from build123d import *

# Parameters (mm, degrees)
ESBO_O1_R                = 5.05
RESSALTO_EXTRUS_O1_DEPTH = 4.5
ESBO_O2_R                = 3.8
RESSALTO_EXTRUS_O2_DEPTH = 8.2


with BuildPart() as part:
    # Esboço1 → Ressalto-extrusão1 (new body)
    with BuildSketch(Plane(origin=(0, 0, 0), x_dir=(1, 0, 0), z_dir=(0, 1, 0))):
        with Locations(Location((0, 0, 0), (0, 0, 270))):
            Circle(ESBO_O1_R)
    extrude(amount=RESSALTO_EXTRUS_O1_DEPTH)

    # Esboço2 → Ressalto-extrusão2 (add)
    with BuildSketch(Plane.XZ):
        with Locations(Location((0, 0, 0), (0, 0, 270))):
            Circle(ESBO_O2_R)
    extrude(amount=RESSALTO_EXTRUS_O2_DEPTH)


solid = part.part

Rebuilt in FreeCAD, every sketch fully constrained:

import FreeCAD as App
import Part
import Sketcher
Q = App.Units.Quantity

doc = App.newDocument("Part")
body = doc.addObject("PartDesign::Body", "Body")

sketch1 = body.newObject("Sketcher::SketchObject", "Sketch")
sketch1.AttachmentSupport = (doc.getObject("XZ_Plane"), [""])
sketch1.MapMode = "FlatFace"
sketch1.addGeometry(Part.Circle(App.Vector(0, 0, 0), App.Vector(0, 0, 1), 5), False)
sketch1.addConstraint(Sketcher.Constraint("Coincident", 0, 3, -1, 1))
sketch1.addConstraint(Sketcher.Constraint("Diameter", 0, Q("10.1 mm")))
pad1 = body.newObject("PartDesign::Pad", "Pad")
pad1.Profile = sketch1
pad1.Length = 4.5
pad1.Reversed = True

sketch2 = body.newObject("Sketcher::SketchObject", "Sketch001")
sketch2.AttachmentSupport = (doc.getObject("XZ_Plane"), [""])
sketch2.MapMode = "FlatFace"
sketch2.addGeometry(Part.Circle(App.Vector(0, 0, 0), App.Vector(0, 0, 1), 3.8), False)
sketch2.addConstraint(Sketcher.Constraint("Coincident", 0, 3, -1, 1))
sketch2.addConstraint(Sketcher.Constraint("Diameter", 0, Q("7.6 mm")))
pad2 = body.newObject("PartDesign::Pad", "Pad001")
pad2.Profile = sketch2
pad2.Length = 8.2

doc.recompute()
